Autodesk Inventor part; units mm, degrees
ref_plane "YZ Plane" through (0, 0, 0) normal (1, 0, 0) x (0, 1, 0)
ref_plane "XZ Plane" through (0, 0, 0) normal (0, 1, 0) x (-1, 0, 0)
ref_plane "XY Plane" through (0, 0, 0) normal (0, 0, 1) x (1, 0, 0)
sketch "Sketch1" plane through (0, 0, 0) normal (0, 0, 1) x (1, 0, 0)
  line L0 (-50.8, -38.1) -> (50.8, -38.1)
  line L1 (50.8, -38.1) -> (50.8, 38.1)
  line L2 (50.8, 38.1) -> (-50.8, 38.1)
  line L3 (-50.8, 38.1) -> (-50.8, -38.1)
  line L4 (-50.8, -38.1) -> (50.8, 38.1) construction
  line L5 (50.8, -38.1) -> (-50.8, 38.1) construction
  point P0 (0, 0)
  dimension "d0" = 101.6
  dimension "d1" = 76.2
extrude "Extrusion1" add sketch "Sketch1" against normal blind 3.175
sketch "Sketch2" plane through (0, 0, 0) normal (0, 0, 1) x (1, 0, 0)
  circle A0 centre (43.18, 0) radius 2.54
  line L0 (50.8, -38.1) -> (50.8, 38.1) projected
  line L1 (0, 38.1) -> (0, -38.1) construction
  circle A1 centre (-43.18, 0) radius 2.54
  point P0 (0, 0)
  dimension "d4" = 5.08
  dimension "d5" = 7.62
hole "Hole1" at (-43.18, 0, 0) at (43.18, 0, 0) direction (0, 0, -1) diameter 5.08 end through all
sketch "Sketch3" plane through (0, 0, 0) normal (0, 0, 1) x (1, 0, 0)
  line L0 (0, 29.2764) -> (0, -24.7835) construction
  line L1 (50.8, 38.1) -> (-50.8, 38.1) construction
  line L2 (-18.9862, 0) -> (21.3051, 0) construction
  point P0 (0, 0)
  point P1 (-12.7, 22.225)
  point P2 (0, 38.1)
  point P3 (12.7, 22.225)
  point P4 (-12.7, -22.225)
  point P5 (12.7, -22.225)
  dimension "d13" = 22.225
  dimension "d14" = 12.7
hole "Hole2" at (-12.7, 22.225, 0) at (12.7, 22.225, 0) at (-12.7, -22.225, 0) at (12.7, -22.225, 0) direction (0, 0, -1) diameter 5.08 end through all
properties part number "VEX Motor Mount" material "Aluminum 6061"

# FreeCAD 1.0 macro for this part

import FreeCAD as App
import Part
import Sketcher
Q = App.Units.Quantity


def add_polygon(sketch, points):
    """Adds a closed chain of lines whose ends are joined by coincident constraints."""
    first, n = sketch.GeometryCount, len(points)
    for a, b in zip(points, points[1:] + points[:1]):
        sketch.addGeometry(Part.LineSegment(App.Vector(*a, 0), App.Vector(*b, 0)), False)
    for i in range(n):
        sketch.addConstraint(Sketcher.Constraint("Coincident", first + i, 2, first + (i + 1) % n, 1))

doc = App.newDocument("Part")
body = doc.addObject("PartDesign::Body", "Body")

# Sketch on XY plane
sketch1 = body.newObject("Sketcher::SketchObject", "Sketch")
sketch1.AttachmentSupport = (doc.getObject("XY_Plane"), [""])
sketch1.MapMode = "FlatFace"
add_polygon(sketch1, [(-51, 38), (-51, -38), (51, -38), (51, 38)])  # lines 0-3
sketch1.addConstraint(Sketcher.Constraint("Vertical", 0))
sketch1.addConstraint(Sketcher.Constraint("Horizontal", 1))
sketch1.addConstraint(Sketcher.Constraint("Vertical", 2))
sketch1.addConstraint(Sketcher.Constraint("Horizontal", 3))
sketch1.addConstraint(Sketcher.Constraint("Symmetric", 0, 2, 2, 2, -1, 1))
sketch1.addConstraint(Sketcher.Constraint("DistanceX", 1, 1, 1, 2, Q("4 in")))
sketch1.addConstraint(Sketcher.Constraint("DistanceY", 0, 2, 0, 1, Q("3 in")))
pad1 = body.newObject("PartDesign::Pad", "Pad")
pad1.Profile = sketch1
pad1.Length = Q("0.125 in")
pad1.Reversed = True

# Sketch on XY plane
sketch2 = body.newObject("Sketcher::SketchObject", "Sketch001")
sketch2.AttachmentSupport = (doc.getObject("XY_Plane"), [""])
sketch2.MapMode = "FlatFace"
sketch2.addGeometry(Part.Circle(App.Vector(-43.2, 0, 0), App.Vector(0, 0, 1), 2.5), False)
sketch2.addGeometry(Part.Circle(App.Vector(43.2, 0, 0), App.Vector(0, 0, 1), 2.5), False)
sketch2.addConstraint(Sketcher.Constraint("Equal", 0, 1))
sketch2.addConstraint(Sketcher.Constraint("Symmetric", 0, 3, 1, 3, -1, 1))
sketch2.addConstraint(Sketcher.Constraint("PointOnObject", 0, 3, -1))
sketch2.addConstraint(Sketcher.Constraint("Diameter", 0, Q("0.2 in")))
sketch2.addConstraint(Sketcher.Constraint("DistanceX", 0, 3, -1, 1, Q("1.7 in")))
doc.recompute()
hole = body.newObject("PartDesign::Hole", "Hole")
hole.Profile = sketch2
hole.ThreadType = "None"
hole.Diameter = Q("0.2 in")
hole.DepthType = "ThroughAll"

# Sketch on XY plane
sketch3 = body.newObject("Sketcher::SketchObject", "Sketch002")
sketch3.AttachmentSupport = (doc.getObject("XY_Plane"), [""])
sketch3.MapMode = "FlatFace"
sketch3.addGeometry(Part.Circle(App.Vector(-12.7, 22.2, 0), App.Vector(0, 0, 1), 2.5), False)
sketch3.addGeometry(Part.Circle(App.Vector(12.7, 22.2, 0), App.Vector(0, 0, 1), 2.5), False)
sketch3.addGeometry(Part.Circle(App.Vector(-12.7, -22.2, 0), App.Vector(0, 0, 1), 2.5), False)
sketch3.addGeometry(Part.Circle(App.Vector(12.7, -22.2, 0), App.Vector(0, 0, 1), 2.5), False)
sketch3.addConstraint(Sketcher.Constraint("Equal", 0, 1))
sketch3.addConstraint(Sketcher.Constraint("Equal", 1, 2))
sketch3.addConstraint(Sketcher.Constraint("Equal", 2, 3))
sketch3.addConstraint(Sketcher.Constraint("Symmetric", 1, 3, 2, 3, -1, 1))
sketch3.addConstraint(Sketcher.Constraint("Symmetric", 0, 3, 3, 3, -1, 1))
sketch3.addConstraint(Sketcher.Constraint("Symmetric", 0, 3, 1, 3, -2))
sketch3.addConstraint(Sketcher.Constraint("Diameter", 0, Q("0.2 in")))
sketch3.addConstraint(Sketcher.Constraint("DistanceX", 0, 3, 1, 3, Q("1 in")))
sketch3.addConstraint(Sketcher.Constraint("DistanceY", 2, 3, 0, 3, Q("1.75 in")))
doc.recompute()
hole2 = body.newObject("PartDesign::Hole", "Hole001")
hole2.Profile = sketch3
hole2.ThreadType = "None"
hole2.Diameter = Q("0.2 in")
hole2.DepthType = "ThroughAll"

doc.recompute()
